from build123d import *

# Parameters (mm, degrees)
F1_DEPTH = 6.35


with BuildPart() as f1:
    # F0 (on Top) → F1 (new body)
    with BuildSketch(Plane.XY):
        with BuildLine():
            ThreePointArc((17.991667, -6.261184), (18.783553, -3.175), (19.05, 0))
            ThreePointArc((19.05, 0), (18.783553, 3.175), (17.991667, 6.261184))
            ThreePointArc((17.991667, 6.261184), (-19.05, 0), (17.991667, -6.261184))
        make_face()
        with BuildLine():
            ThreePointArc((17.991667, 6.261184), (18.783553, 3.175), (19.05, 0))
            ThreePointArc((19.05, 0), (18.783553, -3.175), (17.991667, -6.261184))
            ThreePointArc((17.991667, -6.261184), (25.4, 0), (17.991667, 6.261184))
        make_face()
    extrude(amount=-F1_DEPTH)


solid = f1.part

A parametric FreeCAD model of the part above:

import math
import FreeCAD as App
import Part
import Sketcher
from FreeCAD import Vector
Q = App.Units.Quantity

doc = App.newDocument("Part")
body = doc.addObject("PartDesign::Body", "Body")

sketch1 = doc.addObject("Sketcher::SketchObject", "Sketch")
body.addObject(sketch1)
sketch1.AttachmentSupport = (doc.XY_Plane, [""])
sketch1.MapMode = "FlatFace"
sketch1.addGeometry([
    Part.ArcOfCircle(Part.Circle(Vector(0, 0, 0), Vector(0, 0, 1), 19), math.radians(19), math.radians(341)),
    Part.ArcOfCircle(Part.Circle(Vector(19, 0, 0), Vector(0, 0, 1), 6), math.radians(-100), math.radians(100)),
], False)
sketch1.addConstraint([
    Sketcher.Constraint("Coincident", 0, 1, 1, 2),
    Sketcher.Constraint("Coincident", 1, 1, 0, 2),
    Sketcher.Constraint("Coincident", 0, 3, -1, 1),
    Sketcher.Constraint("PointOnObject", 1, 3, -1),
    Sketcher.Constraint("Radius", 0, Q("0.75 in")),
    Sketcher.Constraint("Radius", 1, Q("0.25 in")),
    Sketcher.Constraint("DistanceX", -1, 1, 1, 3, Q("0.75 in")),
])
pad1 = doc.addObject("PartDesign::Pad", "Pad")
body.addObject(pad1)
pad1.Profile = sketch1
pad1.Length = Q("0.25 in")
pad1.Reversed = True

doc.recompute()
